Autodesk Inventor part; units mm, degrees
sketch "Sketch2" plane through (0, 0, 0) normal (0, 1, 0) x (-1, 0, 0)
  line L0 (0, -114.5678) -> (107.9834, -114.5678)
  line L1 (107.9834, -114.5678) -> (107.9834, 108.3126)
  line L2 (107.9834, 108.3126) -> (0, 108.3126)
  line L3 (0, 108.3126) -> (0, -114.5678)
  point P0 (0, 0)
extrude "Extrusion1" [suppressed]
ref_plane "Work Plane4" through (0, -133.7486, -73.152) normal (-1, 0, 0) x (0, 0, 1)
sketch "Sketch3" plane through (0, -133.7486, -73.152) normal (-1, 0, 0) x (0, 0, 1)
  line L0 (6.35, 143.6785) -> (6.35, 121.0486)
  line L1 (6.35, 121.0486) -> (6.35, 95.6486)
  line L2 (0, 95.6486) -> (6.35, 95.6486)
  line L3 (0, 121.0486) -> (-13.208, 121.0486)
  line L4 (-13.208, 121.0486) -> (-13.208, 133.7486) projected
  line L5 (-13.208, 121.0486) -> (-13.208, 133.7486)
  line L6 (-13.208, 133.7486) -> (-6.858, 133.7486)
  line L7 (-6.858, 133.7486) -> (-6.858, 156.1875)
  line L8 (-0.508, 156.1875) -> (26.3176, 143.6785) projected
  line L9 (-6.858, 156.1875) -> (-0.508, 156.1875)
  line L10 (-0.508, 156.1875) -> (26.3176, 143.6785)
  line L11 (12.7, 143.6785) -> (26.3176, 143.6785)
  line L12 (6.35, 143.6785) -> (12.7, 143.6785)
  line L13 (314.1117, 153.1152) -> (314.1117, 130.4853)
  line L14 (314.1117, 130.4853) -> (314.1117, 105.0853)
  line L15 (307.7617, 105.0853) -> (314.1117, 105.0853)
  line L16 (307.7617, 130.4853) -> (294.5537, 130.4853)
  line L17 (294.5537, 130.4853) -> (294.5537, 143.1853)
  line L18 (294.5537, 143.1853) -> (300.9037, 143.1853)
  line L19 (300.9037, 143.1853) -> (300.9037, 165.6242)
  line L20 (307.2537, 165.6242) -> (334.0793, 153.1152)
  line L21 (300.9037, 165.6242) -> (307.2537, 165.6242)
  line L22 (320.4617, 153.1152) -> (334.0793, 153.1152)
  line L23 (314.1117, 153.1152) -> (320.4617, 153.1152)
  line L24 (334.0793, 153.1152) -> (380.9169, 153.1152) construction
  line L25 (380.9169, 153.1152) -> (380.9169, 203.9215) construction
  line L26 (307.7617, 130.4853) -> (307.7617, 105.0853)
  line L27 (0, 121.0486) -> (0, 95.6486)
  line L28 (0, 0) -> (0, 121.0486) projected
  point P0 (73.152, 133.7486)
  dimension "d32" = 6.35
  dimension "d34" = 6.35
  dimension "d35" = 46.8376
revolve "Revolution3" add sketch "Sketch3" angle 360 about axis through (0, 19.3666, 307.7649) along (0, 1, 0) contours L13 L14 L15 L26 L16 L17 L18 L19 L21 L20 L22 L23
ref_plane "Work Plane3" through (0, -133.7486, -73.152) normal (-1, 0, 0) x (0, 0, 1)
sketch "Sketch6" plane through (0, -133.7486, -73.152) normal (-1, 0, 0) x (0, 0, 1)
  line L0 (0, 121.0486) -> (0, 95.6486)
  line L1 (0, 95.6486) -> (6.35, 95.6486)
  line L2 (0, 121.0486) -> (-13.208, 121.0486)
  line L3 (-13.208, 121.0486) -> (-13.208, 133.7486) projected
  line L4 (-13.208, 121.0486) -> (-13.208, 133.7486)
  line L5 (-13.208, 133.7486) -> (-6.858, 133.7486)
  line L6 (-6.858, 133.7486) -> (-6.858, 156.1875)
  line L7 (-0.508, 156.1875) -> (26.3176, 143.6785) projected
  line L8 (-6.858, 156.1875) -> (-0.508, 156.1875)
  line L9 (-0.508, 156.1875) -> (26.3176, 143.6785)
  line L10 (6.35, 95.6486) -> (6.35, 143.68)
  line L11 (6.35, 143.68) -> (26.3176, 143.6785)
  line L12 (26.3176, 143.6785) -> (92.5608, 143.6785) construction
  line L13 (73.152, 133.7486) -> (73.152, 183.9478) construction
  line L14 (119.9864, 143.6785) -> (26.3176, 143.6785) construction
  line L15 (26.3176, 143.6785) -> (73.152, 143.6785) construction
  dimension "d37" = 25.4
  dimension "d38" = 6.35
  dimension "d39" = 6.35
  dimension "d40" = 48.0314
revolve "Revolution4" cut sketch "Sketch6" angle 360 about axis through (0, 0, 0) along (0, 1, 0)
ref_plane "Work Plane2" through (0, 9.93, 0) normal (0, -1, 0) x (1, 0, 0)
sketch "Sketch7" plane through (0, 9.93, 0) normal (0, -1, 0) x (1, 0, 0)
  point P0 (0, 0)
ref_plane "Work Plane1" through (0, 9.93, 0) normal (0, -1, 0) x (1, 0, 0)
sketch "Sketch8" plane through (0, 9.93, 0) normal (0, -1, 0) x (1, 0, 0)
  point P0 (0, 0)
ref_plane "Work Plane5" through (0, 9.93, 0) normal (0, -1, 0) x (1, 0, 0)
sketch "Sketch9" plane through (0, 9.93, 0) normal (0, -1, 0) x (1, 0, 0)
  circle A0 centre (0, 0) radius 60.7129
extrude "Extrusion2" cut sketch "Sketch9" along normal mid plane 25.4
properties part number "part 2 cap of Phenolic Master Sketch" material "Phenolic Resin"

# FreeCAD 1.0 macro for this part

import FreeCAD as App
import Part
import Sketcher
from FreeCAD import Vector
Q = App.Units.Quantity


def add_polygon(sketch, points):
    """Adds a closed chain of lines whose ends are joined by coincident constraints."""
    first, n = sketch.GeometryCount, len(points)
    for a, b in zip(points, points[1:] + points[:1]):
        sketch.addGeometry(Part.LineSegment(App.Vector(*a, 0), App.Vector(*b, 0)), False)
    for i in range(n):
        sketch.addConstraint(Sketcher.Constraint("Coincident", first + i, 2, first + (i + 1) % n, 1))

doc = App.newDocument("Part")
body = doc.addObject("PartDesign::Body", "Body")

sketch1 = body.newObject("Sketcher::SketchObject", "Sketch")
sketch1.AttachmentSupport = (doc.getObject("YZ_Plane"), [""])
sketch1.MapMode = "FlatFace"
add_polygon(sketch1, [(-29, 241), (19, 241), (19, 261), (32, 234), (32, 228), (9, 228), (9, 221), (-3, 221), (-3, 235), (-29, 235)])
sketch1.addGeometry(Part.LineSegment(Vector(-29, 308, 0), Vector(32, 308, 0)), True)
sketch1.addConstraint([
    Sketcher.Constraint("Horizontal", 0),
    Sketcher.Constraint("Vertical", 1),
    Sketcher.Constraint("Vertical", 3),
    Sketcher.Constraint("Horizontal", 4),
    Sketcher.Constraint("Vertical", 5),
    Sketcher.Constraint("Horizontal", 6),
    Sketcher.Constraint("Vertical", 7),
    Sketcher.Constraint("Horizontal", 8),
    Sketcher.Constraint("Vertical", 9),
    Sketcher.Constraint("Horizontal", 10),
    Sketcher.Constraint("Vertical", 9, 2, 10, 1),
    Sketcher.Constraint("Vertical", 3, 2, 10, 2),
    Sketcher.Constraint("Equal", 3, 5),
    Sketcher.Constraint("Equal", 5, 9),
    Sketcher.Constraint("DistanceY", 3, 2, 3, 1, Q("0.25 in")),
    Sketcher.Constraint("DistanceX", 8, 2, 8, 1, Q("1 in")),
    Sketcher.Constraint("DistanceX", 6, 2, 6, 1, Q("0.5 in")),
    Sketcher.Constraint("Angle", 2, Q("-65 deg")),
    Sketcher.Constraint("DistanceY", 1, 2, 10, 1, Q("1.844 in")),
    Sketcher.Constraint("DistanceY", 7, 1, 7, 2, Q("0.52 in")),
    Sketcher.Constraint("Distance", 2, Q("1.1653 in")),
    Sketcher.Constraint("DistanceX", 0, 1, 0, 2, Q("48.03 mm")),
    Sketcher.Constraint("DistanceY", -1, 1, 0, 2, Q("9.4866 in")),
    Sketcher.Constraint("DistanceX", -1, 1, 0, 2, Q("19.3666 mm")),
])
revolution = body.newObject("PartDesign::Revolution", "Revolution")
revolution.Profile = sketch1
revolution.ReferenceAxis = (sketch1, ["Axis0"])
revolution.Angle = 360

sketch2 = body.newObject("Sketcher::SketchObject", "Sketch001")
sketch2.AttachmentSupport = (doc.getObject("YZ_Plane"), [""])
sketch2.MapMode = "FlatFace"
add_polygon(sketch2, [(-13, -86), (-13, -73), (-38, -73), (-38, -67), (10, -67), (10, -47), (22, -74), (22, -80), (0, -80), (0, -86)])
sketch2.addConstraint([
    Sketcher.Constraint("Vertical", 0),
    Sketcher.Constraint("Horizontal", 1),
    Sketcher.Constraint("Vertical", 2),
    Sketcher.Constraint("Horizontal", 3),
    Sketcher.Constraint("Vertical", 6),
    Sketcher.Constraint("Horizontal", 7),
    Sketcher.Constraint("Vertical", 8),
    Sketcher.Constraint("Horizontal", 9),
    Sketcher.Constraint("PointOnObject", 7, 2, -2),
    Sketcher.Constraint("Equal", 2, 6),
    Sketcher.Constraint("Equal", 6, 8),
    Sketcher.Constraint("DistanceX", 1, 2, 1, 1, Q("1 in")),
    Sketcher.Constraint("DistanceY", 2, 1, 2, 2, Q("0.25 in")),
    Sketcher.Constraint("DistanceX", 3, 1, 3, 2, Q("1.891 in")),
    Sketcher.Constraint("DistanceX", 9, 2, 9, 1, Q("0.5 in")),
    Sketcher.Constraint("Angle", 5, Q("-65 deg")),
    Sketcher.Constraint("DistanceY", 0, 1, 0, 2, Q("0.52 in")),
    Sketcher.Constraint("DistanceY", 5, 2, -1, 1, Q("2.9 in")),
    Sketcher.Constraint("Distance", 5, Q("1.1653 in")),
    Sketcher.Constraint("DistanceX", 7, 2, 7, 1, Q("22.439 mm")),
])
groove = body.newObject("PartDesign::Groove", "Groove")
groove.Profile = sketch2
groove.ReferenceAxis = (sketch2, ["H_Axis"])
groove.Angle = 360

sketch3 = body.newObject("Sketcher::SketchObject", "Sketch002")
sketch3.AttachmentSupport = (doc.getObject("XZ_Plane"), [""])
sketch3.MapMode = "FlatFace"
sketch3.AttachmentOffset = App.Placement(Vector(0, 0, -9.93), App.Rotation())
sketch3.addGeometry(Part.Circle(Vector(0, 0, 0), Vector(0, 0, 1), 61), False)
sketch3.addConstraint([
    Sketcher.Constraint("Coincident", 0, 3, -1, 1),
    Sketcher.Constraint("Diameter", 0, Q("121.4258 mm")),
])
pocket1 = body.newObject("PartDesign::Pocket", "Pocket")
pocket1.Profile = sketch3
pocket1.Length = Q("1 in")
pocket1.Midplane = True

doc.recompute()
